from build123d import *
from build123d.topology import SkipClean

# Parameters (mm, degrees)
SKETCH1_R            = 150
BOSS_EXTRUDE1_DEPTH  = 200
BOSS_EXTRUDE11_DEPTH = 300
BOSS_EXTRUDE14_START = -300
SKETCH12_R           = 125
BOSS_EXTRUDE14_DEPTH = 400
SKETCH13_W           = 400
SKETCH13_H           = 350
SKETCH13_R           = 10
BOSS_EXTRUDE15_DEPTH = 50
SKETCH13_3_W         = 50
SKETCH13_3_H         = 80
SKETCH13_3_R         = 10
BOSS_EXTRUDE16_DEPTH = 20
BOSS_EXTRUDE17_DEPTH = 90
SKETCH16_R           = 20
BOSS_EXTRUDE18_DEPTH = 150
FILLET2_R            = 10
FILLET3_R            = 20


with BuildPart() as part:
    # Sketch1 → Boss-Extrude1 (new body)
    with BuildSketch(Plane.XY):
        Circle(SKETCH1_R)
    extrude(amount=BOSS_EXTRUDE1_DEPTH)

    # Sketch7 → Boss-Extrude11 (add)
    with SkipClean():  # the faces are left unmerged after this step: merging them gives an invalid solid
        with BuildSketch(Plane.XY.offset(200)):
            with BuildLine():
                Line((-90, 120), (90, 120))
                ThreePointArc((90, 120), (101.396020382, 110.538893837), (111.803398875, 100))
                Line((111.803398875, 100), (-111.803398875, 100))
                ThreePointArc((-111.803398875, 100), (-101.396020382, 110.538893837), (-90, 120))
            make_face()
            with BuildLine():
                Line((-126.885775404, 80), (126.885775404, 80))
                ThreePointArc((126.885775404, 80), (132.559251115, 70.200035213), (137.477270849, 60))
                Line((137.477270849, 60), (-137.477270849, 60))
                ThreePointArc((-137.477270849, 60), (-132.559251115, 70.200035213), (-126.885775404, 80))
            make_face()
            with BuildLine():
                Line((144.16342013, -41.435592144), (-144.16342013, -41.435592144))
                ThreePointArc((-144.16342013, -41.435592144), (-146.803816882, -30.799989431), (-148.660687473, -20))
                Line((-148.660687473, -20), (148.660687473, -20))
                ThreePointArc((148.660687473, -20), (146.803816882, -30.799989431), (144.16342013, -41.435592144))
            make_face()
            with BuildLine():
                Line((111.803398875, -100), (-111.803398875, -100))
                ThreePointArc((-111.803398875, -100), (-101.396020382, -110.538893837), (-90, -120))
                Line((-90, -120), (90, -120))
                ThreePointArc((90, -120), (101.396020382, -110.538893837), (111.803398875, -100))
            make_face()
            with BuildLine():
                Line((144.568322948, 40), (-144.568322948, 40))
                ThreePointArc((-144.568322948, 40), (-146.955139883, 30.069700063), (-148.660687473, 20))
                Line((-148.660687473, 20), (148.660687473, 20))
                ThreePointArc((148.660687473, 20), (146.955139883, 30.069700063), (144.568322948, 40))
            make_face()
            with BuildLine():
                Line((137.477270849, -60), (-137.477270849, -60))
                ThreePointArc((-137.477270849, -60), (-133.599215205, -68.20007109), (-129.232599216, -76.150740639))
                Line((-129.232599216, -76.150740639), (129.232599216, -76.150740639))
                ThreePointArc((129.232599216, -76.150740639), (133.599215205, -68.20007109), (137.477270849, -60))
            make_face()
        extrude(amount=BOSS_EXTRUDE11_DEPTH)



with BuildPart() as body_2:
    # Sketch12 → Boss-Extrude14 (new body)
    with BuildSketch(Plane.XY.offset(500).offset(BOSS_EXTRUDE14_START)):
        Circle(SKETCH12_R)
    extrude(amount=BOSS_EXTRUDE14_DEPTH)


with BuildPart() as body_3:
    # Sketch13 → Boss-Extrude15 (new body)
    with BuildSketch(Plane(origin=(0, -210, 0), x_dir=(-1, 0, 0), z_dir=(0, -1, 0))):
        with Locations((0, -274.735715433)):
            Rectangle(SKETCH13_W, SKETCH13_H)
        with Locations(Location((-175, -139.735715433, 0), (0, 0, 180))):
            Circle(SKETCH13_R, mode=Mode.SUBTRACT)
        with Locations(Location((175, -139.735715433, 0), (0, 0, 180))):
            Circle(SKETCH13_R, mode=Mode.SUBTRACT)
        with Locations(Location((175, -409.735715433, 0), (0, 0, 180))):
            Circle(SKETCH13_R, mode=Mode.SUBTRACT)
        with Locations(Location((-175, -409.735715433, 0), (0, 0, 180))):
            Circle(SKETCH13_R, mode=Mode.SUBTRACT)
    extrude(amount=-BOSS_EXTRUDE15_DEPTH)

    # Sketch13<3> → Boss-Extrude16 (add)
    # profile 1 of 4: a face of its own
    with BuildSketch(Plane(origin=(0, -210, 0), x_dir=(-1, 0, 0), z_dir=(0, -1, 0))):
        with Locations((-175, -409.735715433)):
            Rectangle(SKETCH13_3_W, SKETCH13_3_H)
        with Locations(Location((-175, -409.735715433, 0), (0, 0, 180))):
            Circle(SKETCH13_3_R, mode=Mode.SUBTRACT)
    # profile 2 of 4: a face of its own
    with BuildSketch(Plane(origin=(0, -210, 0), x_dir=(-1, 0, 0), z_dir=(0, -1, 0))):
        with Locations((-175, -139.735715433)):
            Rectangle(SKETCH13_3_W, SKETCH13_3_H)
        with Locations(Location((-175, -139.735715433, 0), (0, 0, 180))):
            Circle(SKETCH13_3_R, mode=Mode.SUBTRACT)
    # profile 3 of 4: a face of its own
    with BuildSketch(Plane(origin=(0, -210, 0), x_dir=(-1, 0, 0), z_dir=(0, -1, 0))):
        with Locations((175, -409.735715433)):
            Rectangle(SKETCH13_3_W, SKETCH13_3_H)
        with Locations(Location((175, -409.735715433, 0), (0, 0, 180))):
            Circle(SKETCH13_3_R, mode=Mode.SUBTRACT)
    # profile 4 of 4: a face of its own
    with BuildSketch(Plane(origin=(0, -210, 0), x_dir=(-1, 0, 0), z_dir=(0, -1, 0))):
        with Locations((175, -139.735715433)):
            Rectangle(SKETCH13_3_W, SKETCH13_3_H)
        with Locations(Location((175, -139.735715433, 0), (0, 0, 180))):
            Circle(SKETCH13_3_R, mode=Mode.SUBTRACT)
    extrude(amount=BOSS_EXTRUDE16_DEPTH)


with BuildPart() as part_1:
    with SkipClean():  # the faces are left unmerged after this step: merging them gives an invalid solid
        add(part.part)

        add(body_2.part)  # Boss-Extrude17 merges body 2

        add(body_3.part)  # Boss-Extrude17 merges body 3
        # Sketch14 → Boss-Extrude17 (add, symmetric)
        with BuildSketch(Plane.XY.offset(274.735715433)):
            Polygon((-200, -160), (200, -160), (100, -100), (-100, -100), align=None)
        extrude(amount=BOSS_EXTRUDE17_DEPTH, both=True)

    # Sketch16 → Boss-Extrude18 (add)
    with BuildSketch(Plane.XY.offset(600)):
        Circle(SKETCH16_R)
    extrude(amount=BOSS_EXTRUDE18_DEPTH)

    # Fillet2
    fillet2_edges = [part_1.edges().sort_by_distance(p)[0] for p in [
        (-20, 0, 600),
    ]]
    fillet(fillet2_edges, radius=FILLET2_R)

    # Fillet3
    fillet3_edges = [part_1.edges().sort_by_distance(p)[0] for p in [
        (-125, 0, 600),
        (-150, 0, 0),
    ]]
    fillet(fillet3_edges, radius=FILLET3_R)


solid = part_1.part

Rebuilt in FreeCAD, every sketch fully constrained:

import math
import FreeCAD as App
import Part
import Sketcher

V = App.Vector
Q = App.Units.Quantity


def edges_at(feature, points):
    """Names of the edges that pass closest to the given points."""
    edges = feature.Shape.Edges
    near = lambda p: min(range(len(edges)), key=lambda i: edges[i].distToShape(Part.Vertex(*p))[0])
    return sorted({f"Edge{near(p) + 1}" for p in points})


def add_polygon(sketch, points):
    """Adds a closed chain of lines whose ends are joined by coincident constraints."""
    first, n = sketch.GeometryCount, len(points)
    for a, b in zip(points, points[1:] + points[:1]):
        sketch.addGeometry(Part.LineSegment(App.Vector(*a, 0), App.Vector(*b, 0)), False)
    for i in range(n):
        sketch.addConstraint(Sketcher.Constraint("Coincident", first + i, 2, first + (i + 1) % n, 1))

doc = App.newDocument("Part")
body = doc.addObject("PartDesign::Body", "Body")

# Sketch on XY plane
sketch1 = body.newObject("Sketcher::SketchObject", "Sketch")
sketch1.AttachmentSupport = (doc.getObject("XY_Plane"), [""])
sketch1.MapMode = "FlatFace"
sketch1.addGeometry(Part.Circle(V(0, 0, 0), V(0, 0, 1), 150), False)
sketch1.addConstraint(Sketcher.Constraint("Coincident", 0, 3, -1, 1))
sketch1.addConstraint(Sketcher.Constraint("Diameter", 0, Q("300 mm")))
pad1 = body.newObject("PartDesign::Pad", "Pad")
pad1.Profile = sketch1
pad1.Length = 200

# Sketch on XY plane
sketch2 = body.newObject("Sketcher::SketchObject", "Sketch001")
sketch2.AttachmentSupport = (doc.getObject("XY_Plane"), [""])
sketch2.MapMode = "FlatFace"
sketch2.AttachmentOffset = App.Placement(V(0, 0, 200), App.Rotation())
sketch2.addGeometry(Part.LineSegment(V(90, 120, 0), V(-90, 120, 0)), False)
sketch2.addGeometry(Part.ArcOfCircle(Part.Circle(V(0, 0, 0), V(0, 0, 1), 150), math.radians(126.87), math.radians(138.19)), False)
sketch2.addGeometry(Part.LineSegment(V(-112, 100, 0), V(112, 100, 0)), False)
sketch2.addGeometry(Part.ArcOfCircle(Part.Circle(V(0, 0, 0), V(0, 0, 1), 150), math.radians(41.81), math.radians(53.13)), False)
sketch2.addGeometry(Part.LineSegment(V(127, 80, 0), V(-127, 80, 0)), False)
sketch2.addGeometry(Part.ArcOfCircle(Part.Circle(V(0, 0, 0), V(0, 0, 1), 150), math.radians(147.77), math.radians(156.42)), False)
sketch2.addGeometry(Part.LineSegment(V(-137, 60, 0), V(137, 60, 0)), False)
sketch2.addGeometry(Part.ArcOfCircle(Part.Circle(V(0, 0, 0), V(0, 0, 1), 150), math.radians(23.58), math.radians(32.23)), False)
sketch2.addGeometry(Part.LineSegment(V(-144, -41, 0), V(144, -41, 0)), False)
sketch2.addGeometry(Part.ArcOfCircle(Part.Circle(V(0, 0, 0), V(0, 0, 1), 150), math.radians(-16.04), math.radians(-7.66)), False)
sketch2.addGeometry(Part.LineSegment(V(149, -20, 0), V(-149, -20, 0)), False)
sketch2.addGeometry(Part.ArcOfCircle(Part.Circle(V(0, 0, 0), V(0, 0, 1), 150), math.radians(-172.34), math.radians(-163.96)), False)
sketch2.addGeometry(Part.LineSegment(V(112, -100, 0), V(-112, -100, 0)), False)
sketch2.addGeometry(Part.ArcOfCircle(Part.Circle(V(0, 0, 0), V(0, 0, 1), 150), math.radians(-138.19), math.radians(-126.87)), False)
sketch2.addGeometry(Part.LineSegment(V(-90, -120, 0), V(90, -120, 0)), False)
sketch2.addGeometry(Part.ArcOfCircle(Part.Circle(V(0, 0, 0), V(0, 0, 1), 150), math.radians(-53.13), math.radians(-41.81)), False)
sketch2.addGeometry(Part.LineSegment(V(145, 40, 0), V(-145, 40, 0)), False)
sketch2.addGeometry(Part.ArcOfCircle(Part.Circle(V(0, 0, 0), V(0, 0, 1), 150), math.radians(164.53), math.radians(172.34)), False)
sketch2.addGeometry(Part.LineSegment(V(-149, 20, 0), V(149, 20, 0)), False)
sketch2.addGeometry(Part.ArcOfCircle(Part.Circle(V(0, 0, 0), V(0, 0, 1), 150), math.radians(7.66), math.radians(15.47)), False)
sketch2.addGeometry(Part.LineSegment(V(137, -60, 0), V(-137, -60, 0)), False)
sketch2.addGeometry(Part.ArcOfCircle(Part.Circle(V(0, 0, 0), V(0, 0, 1), 150), math.radians(-156.42), math.radians(-149.49)), False)
sketch2.addGeometry(Part.LineSegment(V(-129, -76, 0), V(129, -76, 0)), False)
sketch2.addGeometry(Part.ArcOfCircle(Part.Circle(V(0, 0, 0), V(0, 0, 1), 150), math.radians(-30.51), math.radians(-23.58)), False)
sketch2.addConstraint(Sketcher.Constraint("Coincident", 0, 2, 1, 1))
sketch2.addConstraint(Sketcher.Constraint("Coincident", 1, 2, 2, 1))
sketch2.addConstraint(Sketcher.Constraint("Coincident", 2, 2, 3, 1))
sketch2.addConstraint(Sketcher.Constraint("Coincident", 3, 2, 0, 1))
sketch2.addConstraint(Sketcher.Constraint("Coincident", 4, 2, 5, 1))
sketch2.addConstraint(Sketcher.Constraint("Coincident", 5, 2, 6, 1))
sketch2.addConstraint(Sketcher.Constraint("Coincident", 6, 2, 7, 1))
sketch2.addConstraint(Sketcher.Constraint("Coincident", 7, 2, 4, 1))
sketch2.addConstraint(Sketcher.Constraint("Coincident", 8, 2, 9, 1))
sketch2.addConstraint(Sketcher.Constraint("Coincident", 9, 2, 10, 1))
sketch2.addConstraint(Sketcher.Constraint("Coincident", 10, 2, 11, 1))
sketch2.addConstraint(Sketcher.Constraint("Coincident", 11, 2, 8, 1))
sketch2.addConstraint(Sketcher.Constraint("Coincident", 12, 2, 13, 1))
sketch2.addConstraint(Sketcher.Constraint("Coincident", 13, 2, 14, 1))
sketch2.addConstraint(Sketcher.Constraint("Coincident", 14, 2, 15, 1))
sketch2.addConstraint(Sketcher.Constraint("Coincident", 15, 2, 12, 1))
sketch2.addConstraint(Sketcher.Constraint("Coincident", 16, 2, 17, 1))
sketch2.addConstraint(Sketcher.Constraint("Coincident", 17, 2, 18, 1))
sketch2.addConstraint(Sketcher.Constraint("Coincident", 18, 2, 19, 1))
sketch2.addConstraint(Sketcher.Constraint("Coincident", 19, 2, 16, 1))
sketch2.addConstraint(Sketcher.Constraint("Coincident", 20, 2, 21, 1))
sketch2.addConstraint(Sketcher.Constraint("Coincident", 21, 2, 22, 1))
sketch2.addConstraint(Sketcher.Constraint("Coincident", 22, 2, 23, 1))
sketch2.addConstraint(Sketcher.Constraint("Coincident", 23, 2, 20, 1))
sketch2.addConstraint(Sketcher.Constraint("Horizontal", 0))
sketch2.addConstraint(Sketcher.Constraint("Horizontal", 2))
sketch2.addConstraint(Sketcher.Constraint("Horizontal", 4))
sketch2.addConstraint(Sketcher.Constraint("Horizontal", 6))
sketch2.addConstraint(Sketcher.Constraint("Horizontal", 8))
sketch2.addConstraint(Sketcher.Constraint("Horizontal", 10))
sketch2.addConstraint(Sketcher.Constraint("Horizontal", 12))
sketch2.addConstraint(Sketcher.Constraint("Horizontal", 14))
sketch2.addConstraint(Sketcher.Constraint("Horizontal", 16))
sketch2.addConstraint(Sketcher.Constraint("Horizontal", 18))
sketch2.addConstraint(Sketcher.Constraint("Horizontal", 20))
sketch2.addConstraint(Sketcher.Constraint("Horizontal", 22))
sketch2.addConstraint(Sketcher.Constraint("Coincident", 1, 3, -1, 1))
sketch2.addConstraint(Sketcher.Constraint("Coincident", 3, 3, -1, 1))
sketch2.addConstraint(Sketcher.Constraint("Coincident", 5, 3, -1, 1))
sketch2.addConstraint(Sketcher.Constraint("Coincident", 7, 3, -1, 1))
sketch2.addConstraint(Sketcher.Constraint("Coincident", 9, 3, -1, 1))
sketch2.addConstraint(Sketcher.Constraint("Coincident", 11, 3, -1, 1))
sketch2.addConstraint(Sketcher.Constraint("Coincident", 13, 3, -1, 1))
sketch2.addConstraint(Sketcher.Constraint("Coincident", 15, 3, -1, 1))
sketch2.addConstraint(Sketcher.Constraint("Coincident", 17, 3, -1, 1))
sketch2.addConstraint(Sketcher.Constraint("Coincident", 19, 3, -1, 1))
sketch2.addConstraint(Sketcher.Constraint("Coincident", 21, 3, -1, 1))
sketch2.addConstraint(Sketcher.Constraint("Coincident", 23, 3, -1, 1))
sketch2.addConstraint(Sketcher.Constraint("Equal", 1, 3))
sketch2.addConstraint(Sketcher.Constraint("Equal", 3, 5))
sketch2.addConstraint(Sketcher.Constraint("Equal", 5, 7))
sketch2.addConstraint(Sketcher.Constraint("Equal", 7, 9))
sketch2.addConstraint(Sketcher.Constraint("Equal", 9, 11))
sketch2.addConstraint(Sketcher.Constraint("Equal", 11, 13))
sketch2.addConstraint(Sketcher.Constraint("Equal", 13, 15))
sketch2.addConstraint(Sketcher.Constraint("Equal", 15, 17))
sketch2.addConstraint(Sketcher.Constraint("Equal", 17, 19))
sketch2.addConstraint(Sketcher.Constraint("Equal", 19, 21))
sketch2.addConstraint(Sketcher.Constraint("Equal", 21, 23))
sketch2.addConstraint(Sketcher.Constraint("Vertical", 1, 2, 12, 2))
sketch2.addConstraint(Sketcher.Constraint("Vertical", 0, 2, 13, 2))
sketch2.addConstraint(Sketcher.Constraint("Vertical", 10, 2, 17, 2))
sketch2.addConstraint(Sketcher.Constraint("Vertical", 5, 2, 20, 2))
sketch2.addConstraint(Sketcher.Constraint("Radius", 1, Q("150 mm")))
sketch2.addConstraint(Sketcher.Constraint("DistanceX", 0, 2, 0, 1, Q("180 mm")))
sketch2.addConstraint(Sketcher.Constraint("DistanceY", -1, 1, 1, 2, Q("100 mm")))
sketch2.addConstraint(Sketcher.Constraint("DistanceY", -1, 1, 4, 2, Q("80 mm")))
sketch2.addConstraint(Sketcher.Constraint("DistanceY", -1, 1, 5, 2, Q("60 mm")))
sketch2.addConstraint(Sketcher.Constraint("DistanceY", 9, 2, -1, 1, Q("20 mm")))
sketch2.addConstraint(Sketcher.Constraint("DistanceY", -1, 1, 16, 2, Q("40 mm")))
sketch2.addConstraint(Sketcher.Constraint("DistanceX", 22, 1, 22, 2, Q("258.465198 mm")))
sketch2.addConstraint(Sketcher.Constraint("DistanceX", 8, 1, 8, 2, Q("288.32684 mm")))
pad2 = body.newObject("PartDesign::Pad", "Pad001")
pad2.Profile = sketch2
pad2.Length = 300
body2 = doc.addObject("PartDesign::Body", "Body001")

# Sketch on XY plane
sketch3 = body2.newObject("Sketcher::SketchObject", "Sketch002")
sketch3.AttachmentSupport = (doc.getObject("XY_Plane001"), [""])
sketch3.MapMode = "FlatFace"
sketch3.AttachmentOffset = App.Placement(V(0, 0, 200), App.Rotation())
sketch3.addGeometry(Part.Circle(V(0, 0, 0), V(0, 0, 1), 125), False)
sketch3.addConstraint(Sketcher.Constraint("Coincident", 0, 3, -1, 1))
sketch3.addConstraint(Sketcher.Constraint("Diameter", 0, Q("250 mm")))
pad3 = body2.newObject("PartDesign::Pad", "Pad002")
pad3.Profile = sketch3
pad3.Length = 400
body3 = doc.addObject("PartDesign::Body", "Body002")

# Sketch on XZ plane
sketch4 = body3.newObject("Sketcher::SketchObject", "Sketch003")
sketch4.AttachmentSupport = (doc.getObject("XZ_Plane002"), [""])
sketch4.MapMode = "FlatFace"
sketch4.AttachmentOffset = App.Placement(V(0, 0, 210), App.Rotation())
add_polygon(sketch4, [(200, 100), (200, 450), (-200, 450), (-200, 100)])  # lines 0-3
sketch4.addGeometry(Part.Circle(V(175, 410, 0), V(0, 0, 1), 10), False)  # 4
sketch4.addGeometry(Part.Circle(V(-175, 410, 0), V(0, 0, 1), 10), False)  # 5
sketch4.addGeometry(Part.Circle(V(175, 140, 0), V(0, 0, 1), 10), False)  # 6
sketch4.addGeometry(Part.Circle(V(-175, 140, 0), V(0, 0, 1), 10), False)  # 7
sketch4.addConstraint(Sketcher.Constraint("Vertical", 0))
sketch4.addConstraint(Sketcher.Constraint("Horizontal", 1))
sketch4.addConstraint(Sketcher.Constraint("Vertical", 2))
sketch4.addConstraint(Sketcher.Constraint("Horizontal", 3))
sketch4.addConstraint(Sketcher.Constraint("Equal", 4, 5))
sketch4.addConstraint(Sketcher.Constraint("Equal", 5, 6))
sketch4.addConstraint(Sketcher.Constraint("Equal", 6, 7))
sketch4.addConstraint(Sketcher.Constraint("Symmetric", 4, 3, 5, 3, -2))
sketch4.addConstraint(Sketcher.Constraint("Symmetric", 6, 3, 7, 3, -2))
sketch4.addConstraint(Sketcher.Constraint("Vertical", 4, 3, 6, 3))
sketch4.addConstraint(Sketcher.Constraint("Diameter", 4, Q("20 mm")))
sketch4.addConstraint(Sketcher.Constraint("DistanceX", 1, 2, 1, 1, Q("400 mm")))
sketch4.addConstraint(Sketcher.Constraint("DistanceY", 0, 1, 0, 2, Q("350 mm")))
sketch4.addConstraint(Sketcher.Constraint("DistanceX", -1, 1, 4, 3, Q("175 mm")))
sketch4.addConstraint(Sketcher.Constraint("DistanceX", -1, 1, 0, 2, Q("200 mm")))
sketch4.addConstraint(Sketcher.Constraint("DistanceY", 6, 3, 4, 3, Q("270 mm")))
sketch4.addConstraint(Sketcher.Constraint("DistanceY", 4, 3, 0, 2, Q("40 mm")))
sketch4.addConstraint(Sketcher.Constraint("DistanceY", -1, 1, 4, 3, Q("409.735715 mm")))
pad4 = body3.newObject("PartDesign::Pad", "Pad003")
pad4.Profile = sketch4
pad4.Length = 50
pad4.Reversed = True

# Sketch on XZ plane
sketch5 = body3.newObject("Sketcher::SketchObject", "Sketch004")
sketch5.AttachmentSupport = (doc.getObject("XZ_Plane002"), [""])
sketch5.MapMode = "FlatFace"
sketch5.AttachmentOffset = App.Placement(V(0, 0, 210), App.Rotation())
add_polygon(sketch5, [(200, 370), (200, 450), (150, 450), (150, 370)])  # lines 0-3
sketch5.addGeometry(Part.Circle(V(175, 410, 0), V(0, 0, 1), 10), False)  # 4
add_polygon(sketch5, [(200, 100), (200, 180), (150, 180), (150, 100)])  # lines 5-8
sketch5.addGeometry(Part.Circle(V(175, 140, 0), V(0, 0, 1), 10), False)  # 9
add_polygon(sketch5, [(-150, 370), (-150, 450), (-200, 450), (-200, 370)])  # lines 10-13
sketch5.addGeometry(Part.Circle(V(-175, 410, 0), V(0, 0, 1), 10), False)  # 14
add_polygon(sketch5, [(-150, 100), (-150, 180), (-200, 180), (-200, 100)])  # lines 15-18
sketch5.addGeometry(Part.Circle(V(-175, 140, 0), V(0, 0, 1), 10), False)  # 19
sketch5.addConstraint(Sketcher.Constraint("Vertical", 0))
sketch5.addConstraint(Sketcher.Constraint("Horizontal", 1))
sketch5.addConstraint(Sketcher.Constraint("Vertical", 2))
sketch5.addConstraint(Sketcher.Constraint("Horizontal", 3))
sketch5.addConstraint(Sketcher.Constraint("Vertical", 5))
sketch5.addConstraint(Sketcher.Constraint("Horizontal", 6))
sketch5.addConstraint(Sketcher.Constraint("Vertical", 7))
sketch5.addConstraint(Sketcher.Constraint("Horizontal", 8))
sketch5.addConstraint(Sketcher.Constraint("Vertical", 10))
sketch5.addConstraint(Sketcher.Constraint("Horizontal", 11))
sketch5.addConstraint(Sketcher.Constraint("Vertical", 12))
sketch5.addConstraint(Sketcher.Constraint("Horizontal", 13))
sketch5.addConstraint(Sketcher.Constraint("Vertical", 15))
sketch5.addConstraint(Sketcher.Constraint("Horizontal", 16))
sketch5.addConstraint(Sketcher.Constraint("Vertical", 17))
sketch5.addConstraint(Sketcher.Constraint("Horizontal", 18))
sketch5.addConstraint(Sketcher.Constraint("Equal", 4, 9))
sketch5.addConstraint(Sketcher.Constraint("Equal", 9, 14))
sketch5.addConstraint(Sketcher.Constraint("Equal", 14, 19))
sketch5.addConstraint(Sketcher.Constraint("Symmetric", 4, 3, 14, 3, -2))
sketch5.addConstraint(Sketcher.Constraint("Symmetric", 9, 3, 19, 3, -2))
sketch5.addConstraint(Sketcher.Constraint("Symmetric", 1, 2, 10, 2, -2))
sketch5.addConstraint(Sketcher.Constraint("Symmetric", 3, 2, 12, 2, -2))
sketch5.addConstraint(Sketcher.Constraint("Symmetric", 6, 2, 15, 2, -2))
sketch5.addConstraint(Sketcher.Constraint("Symmetric", 8, 2, 17, 2, -2))
sketch5.addConstraint(Sketcher.Constraint("Vertical", 4, 3, 9, 3))
sketch5.addConstraint(Sketcher.Constraint("Vertical", 3, 2, 5, 2))
sketch5.addConstraint(Sketcher.Constraint("Vertical", 2, 2, 6, 2))
sketch5.addConstraint(Sketcher.Constraint("Equal", 2, 5))
sketch5.addConstraint(Sketcher.Constraint("Diameter", 4, Q("20 mm")))
sketch5.addConstraint(Sketcher.Constraint("DistanceX", 1, 2, 1, 1, Q("50 mm")))
sketch5.addConstraint(Sketcher.Constraint("DistanceY", 0, 1, 0, 2, Q("80 mm")))
sketch5.addConstraint(Sketcher.Constraint("DistanceX", -1, 1, 4, 3, Q("175 mm")))
sketch5.addConstraint(Sketcher.Constraint("DistanceX", -1, 1, 0, 2, Q("200 mm")))
sketch5.addConstraint(Sketcher.Constraint("DistanceY", 9, 3, 4, 3, Q("270 mm")))
sketch5.addConstraint(Sketcher.Constraint("DistanceY", 4, 3, 0, 2, Q("40 mm")))
sketch5.addConstraint(Sketcher.Constraint("DistanceY", 9, 3, 5, 2, Q("40 mm")))
sketch5.addConstraint(Sketcher.Constraint("DistanceY", -1, 1, 4, 3, Q("409.735715 mm")))
pad5 = body3.newObject("PartDesign::Pad", "Pad004")
pad5.Profile = sketch5
pad5.Length = 20
body.AllowCompound = True
doc.recompute()

boolean = body.newObject("PartDesign::Boolean", "Boolean")
boolean.Type = "Fuse"
boolean.addObjects([body2])
doc.recompute()

boolean2 = body.newObject("PartDesign::Boolean", "Boolean001")
boolean2.Type = "Fuse"
boolean2.addObjects([body3])

# Sketch on XY plane
sketch6 = body.newObject("Sketcher::SketchObject", "Sketch005")
sketch6.AttachmentSupport = (doc.getObject("XY_Plane"), [""])
sketch6.MapMode = "FlatFace"
sketch6.AttachmentOffset = App.Placement(V(0, 0, 274.735715), App.Rotation())
add_polygon(sketch6, [(-200, -160), (200, -160), (100, -100), (-100, -100)])  # lines 0-3
sketch6.addConstraint(Sketcher.Constraint("Horizontal", 0))
sketch6.addConstraint(Sketcher.Constraint("Horizontal", 2))
sketch6.addConstraint(Sketcher.Constraint("Equal", 1, 3))
sketch6.addConstraint(Sketcher.Constraint("DistanceX", 0, 1, 0, 2, Q("400 mm")))
sketch6.addConstraint(Sketcher.Constraint("DistanceX", 2, 2, 2, 1, Q("200 mm")))
sketch6.addConstraint(Sketcher.Constraint("DistanceX", -1, 1, 0, 2, Q("200 mm")))
sketch6.addConstraint(Sketcher.Constraint("DistanceY", 0, 2, -1, 1, Q("160 mm")))
sketch6.addConstraint(Sketcher.Constraint("DistanceY", 1, 2, -1, 1, Q("100 mm")))
pad6 = body.newObject("PartDesign::Pad", "Pad005")
pad6.Profile = sketch6
pad6.Length = 180
pad6.Midplane = True

# Sketch on XY plane
sketch7 = body.newObject("Sketcher::SketchObject", "Sketch006")
sketch7.AttachmentSupport = (doc.getObject("XY_Plane"), [""])
sketch7.MapMode = "FlatFace"
sketch7.AttachmentOffset = App.Placement(V(0, 0, 600), App.Rotation())
sketch7.addGeometry(Part.Circle(V(0, 0, 0), V(0, 0, 1), 20), False)
sketch7.addConstraint(Sketcher.Constraint("Coincident", 0, 3, -1, 1))
sketch7.addConstraint(Sketcher.Constraint("Diameter", 0, Q("40 mm")))
pad7 = body.newObject("PartDesign::Pad", "Pad006")
pad7.Profile = sketch7
pad7.Length = 150
doc.recompute()

fillet = body.newObject("PartDesign::Fillet", "Fillet")
fillet.Base = (pad7, edges_at(pad7, [(-20, 0, 600)]))
fillet.Radius = 10
doc.recompute()

fillet2 = body.newObject("PartDesign::Fillet", "Fillet001")
fillet2.Base = (fillet, edges_at(fillet, [(-125, 0, 600), (-150, 0, 0)]))
fillet2.Radius = 20

doc.recompute()
